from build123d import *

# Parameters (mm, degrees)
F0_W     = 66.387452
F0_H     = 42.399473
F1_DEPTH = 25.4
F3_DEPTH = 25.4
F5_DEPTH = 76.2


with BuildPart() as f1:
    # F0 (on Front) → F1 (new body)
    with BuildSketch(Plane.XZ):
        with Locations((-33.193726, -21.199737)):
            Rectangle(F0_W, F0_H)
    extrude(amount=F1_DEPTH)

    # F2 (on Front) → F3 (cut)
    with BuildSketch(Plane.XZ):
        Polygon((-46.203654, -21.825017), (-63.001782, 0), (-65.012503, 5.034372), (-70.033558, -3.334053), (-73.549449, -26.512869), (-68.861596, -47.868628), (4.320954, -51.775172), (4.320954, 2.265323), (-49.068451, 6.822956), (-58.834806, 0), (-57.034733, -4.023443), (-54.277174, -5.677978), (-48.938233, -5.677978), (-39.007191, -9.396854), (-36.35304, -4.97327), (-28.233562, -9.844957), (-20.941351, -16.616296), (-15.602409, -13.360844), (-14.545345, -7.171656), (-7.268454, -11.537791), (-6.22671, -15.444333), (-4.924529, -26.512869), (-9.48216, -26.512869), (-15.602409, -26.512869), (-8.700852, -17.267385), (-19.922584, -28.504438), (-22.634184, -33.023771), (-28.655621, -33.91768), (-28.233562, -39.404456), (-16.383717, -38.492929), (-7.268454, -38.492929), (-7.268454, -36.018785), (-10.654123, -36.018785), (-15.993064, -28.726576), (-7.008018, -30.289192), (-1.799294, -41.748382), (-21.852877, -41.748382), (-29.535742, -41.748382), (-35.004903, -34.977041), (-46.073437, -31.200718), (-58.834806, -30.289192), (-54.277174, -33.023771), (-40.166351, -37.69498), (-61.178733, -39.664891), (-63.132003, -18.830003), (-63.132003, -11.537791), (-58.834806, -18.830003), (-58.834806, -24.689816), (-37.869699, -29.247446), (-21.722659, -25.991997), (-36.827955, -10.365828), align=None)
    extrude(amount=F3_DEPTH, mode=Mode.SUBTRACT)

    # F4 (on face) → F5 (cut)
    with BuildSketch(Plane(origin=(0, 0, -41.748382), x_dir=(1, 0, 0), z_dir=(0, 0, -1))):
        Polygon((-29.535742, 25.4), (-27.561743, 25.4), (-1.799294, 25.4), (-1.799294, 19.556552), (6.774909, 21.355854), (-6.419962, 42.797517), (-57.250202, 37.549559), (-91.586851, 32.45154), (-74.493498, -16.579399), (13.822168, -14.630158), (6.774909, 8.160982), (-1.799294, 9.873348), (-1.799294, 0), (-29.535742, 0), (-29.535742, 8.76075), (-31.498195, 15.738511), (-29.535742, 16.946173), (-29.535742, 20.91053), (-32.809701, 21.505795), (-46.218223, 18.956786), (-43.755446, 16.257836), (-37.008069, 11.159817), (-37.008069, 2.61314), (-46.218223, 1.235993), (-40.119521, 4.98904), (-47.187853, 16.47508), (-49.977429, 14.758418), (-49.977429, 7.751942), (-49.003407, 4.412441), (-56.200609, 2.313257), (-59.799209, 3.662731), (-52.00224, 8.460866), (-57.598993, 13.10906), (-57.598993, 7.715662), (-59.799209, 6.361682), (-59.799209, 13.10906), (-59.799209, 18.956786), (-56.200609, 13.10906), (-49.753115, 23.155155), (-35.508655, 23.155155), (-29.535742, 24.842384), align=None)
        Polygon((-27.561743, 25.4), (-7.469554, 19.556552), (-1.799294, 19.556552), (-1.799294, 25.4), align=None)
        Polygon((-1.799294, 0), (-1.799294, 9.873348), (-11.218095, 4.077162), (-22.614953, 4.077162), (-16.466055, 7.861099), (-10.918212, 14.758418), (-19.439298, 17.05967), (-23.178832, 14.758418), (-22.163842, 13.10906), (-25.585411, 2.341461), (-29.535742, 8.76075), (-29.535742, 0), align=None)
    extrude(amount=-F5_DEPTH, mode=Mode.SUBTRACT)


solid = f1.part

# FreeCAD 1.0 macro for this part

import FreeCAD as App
import Part
import Sketcher
Q = App.Units.Quantity

doc = App.newDocument("Part")
body = doc.addObject("PartDesign::Body", "Body")
body.AllowCompound = True

# Sketch on XZ plane
sketch1 = body.newObject("Sketcher::SketchObject", "Sketch")
sketch1.AttachmentSupport = (doc.getObject("XZ_Plane"), [""])
sketch1.MapMode = "FlatFace"
sketch1.addGeometry([
    Part.LineSegment(App.Vector(-66, 0, 0), App.Vector(-66, -42, 0)),
    Part.LineSegment(App.Vector(-66, -42, 0), App.Vector(0, -42, 0)),
    Part.LineSegment(App.Vector(0, -42, 0), App.Vector(0, 0, 0)),
    Part.LineSegment(App.Vector(0, 0, 0), App.Vector(-66, 0, 0)),
], False)
sketch1.addConstraint([
    Sketcher.Constraint("Coincident", 0, 2, 1, 1),
    Sketcher.Constraint("Coincident", 1, 2, 2, 1),
    Sketcher.Constraint("Coincident", 2, 2, 3, 1),
    Sketcher.Constraint("Coincident", 3, 2, 0, 1),
    Sketcher.Constraint("Vertical", 0),
    Sketcher.Constraint("Horizontal", 1),
    Sketcher.Constraint("Vertical", 2),
    Sketcher.Constraint("Horizontal", 3),
    Sketcher.Constraint("Coincident", 2, 2, -1, 1),
    Sketcher.Constraint("DistanceX", 1, 1, 1, 2, 66.387452),
    Sketcher.Constraint("DistanceY", 0, 2, 0, 1, 42.399473),
])
pad1 = body.newObject("PartDesign::Pad", "Pad")
pad1.Profile = sketch1
pad1.Length = Q("1 in")

# Sketch on XZ plane
sketch2 = body.newObject("Sketcher::SketchObject", "Sketch001")
sketch2.AttachmentSupport = (doc.getObject("XZ_Plane"), [""])
sketch2.MapMode = "FlatFace"
sketch2.addGeometry([
    Part.LineSegment(App.Vector(-46.2, -21.8, 0), App.Vector(-63, 0, 0)),  # 0
    Part.LineSegment(App.Vector(-63, 0, 0), App.Vector(-65, 5, 0)),  # 1
    Part.LineSegment(App.Vector(-65, 5, 0), App.Vector(-70, -3.3, 0)),  # 2
    Part.LineSegment(App.Vector(-70, -3.3, 0), App.Vector(-73.5, -26.5, 0)),  # 3
    Part.LineSegment(App.Vector(-73.5, -26.5, 0), App.Vector(-68.9, -47.9, 0)),  # 4
    Part.LineSegment(App.Vector(-68.9, -47.9, 0), App.Vector(4.3, -51.8, 0)),  # 5
    Part.LineSegment(App.Vector(4.3, -51.8, 0), App.Vector(4.3, 2.3, 0)),  # 6
    Part.LineSegment(App.Vector(4.3, 2.3, 0), App.Vector(-49.1, 6.8, 0)),  # 7
    Part.LineSegment(App.Vector(-49.1, 6.8, 0), App.Vector(-58.8, 0, 0)),  # 8
    Part.LineSegment(App.Vector(-58.8, 0, 0), App.Vector(-57, -4, 0)),  # 9
    Part.LineSegment(App.Vector(-57, -4, 0), App.Vector(-54.3, -5.7, 0)),  # 10
    Part.LineSegment(App.Vector(-54.3, -5.7, 0), App.Vector(-48.9, -5.7, 0)),  # 11
    Part.LineSegment(App.Vector(-48.9, -5.7, 0), App.Vector(-39, -9.4, 0)),  # 12
    Part.LineSegment(App.Vector(-39, -9.4, 0), App.Vector(-36.4, -5, 0)),  # 13
    Part.LineSegment(App.Vector(-36.4, -5, 0), App.Vector(-28.2, -9.8, 0)),  # 14
    Part.LineSegment(App.Vector(-28.2, -9.8, 0), App.Vector(-20.9, -16.6, 0)),  # 15
    Part.LineSegment(App.Vector(-20.9, -16.6, 0), App.Vector(-15.6, -13.4, 0)),  # 16
    Part.LineSegment(App.Vector(-15.6, -13.4, 0), App.Vector(-14.5, -7.2, 0)),  # 17
    Part.LineSegment(App.Vector(-14.5, -7.2, 0), App.Vector(-7.3, -11.5, 0)),  # 18
    Part.LineSegment(App.Vector(-7.3, -11.5, 0), App.Vector(-6.2, -15.4, 0)),  # 19
    Part.LineSegment(App.Vector(-6.2, -15.4, 0), App.Vector(-4.9, -26.5, 0)),  # 20
    Part.LineSegment(App.Vector(-4.9, -26.5, 0), App.Vector(-15.6, -26.5, 0)),  # 21
    Part.LineSegment(App.Vector(-15.6, -26.5, 0), App.Vector(-8.7, -17.3, 0)),  # 22
    Part.LineSegment(App.Vector(-8.7, -17.3, 0), App.Vector(-19.9, -28.5, 0)),  # 23
    Part.LineSegment(App.Vector(-19.9, -28.5, 0), App.Vector(-22.6, -33, 0)),  # 24
    Part.LineSegment(App.Vector(-22.6, -33, 0), App.Vector(-28.7, -33.9, 0)),  # 25
    Part.LineSegment(App.Vector(-28.7, -33.9, 0), App.Vector(-28.2, -39.4, 0)),  # 26
    Part.LineSegment(App.Vector(-28.2, -39.4, 0), App.Vector(-16.4, -38.5, 0)),  # 27
    Part.LineSegment(App.Vector(-16.4, -38.5, 0), App.Vector(-7.3, -38.5, 0)),  # 28
    Part.LineSegment(App.Vector(-7.3, -38.5, 0), App.Vector(-7.3, -36, 0)),  # 29
    Part.LineSegment(App.Vector(-7.3, -36, 0), App.Vector(-10.7, -36, 0)),  # 30
    Part.LineSegment(App.Vector(-10.7, -36, 0), App.Vector(-16, -28.7, 0)),  # 31
    Part.LineSegment(App.Vector(-16, -28.7, 0), App.Vector(-7, -30.3, 0)),  # 32
    Part.LineSegment(App.Vector(-7, -30.3, 0), App.Vector(-1.8, -41.7, 0)),  # 33
    Part.LineSegment(App.Vector(-1.8, -41.7, 0), App.Vector(-29.5, -41.7, 0)),  # 34
    Part.LineSegment(App.Vector(-29.5, -41.7, 0), App.Vector(-35, -35, 0)),  # 35
    Part.LineSegment(App.Vector(-35, -35, 0), App.Vector(-46.1, -31.2, 0)),  # 36
    Part.LineSegment(App.Vector(-46.1, -31.2, 0), App.Vector(-58.8, -30.3, 0)),  # 37
    Part.LineSegment(App.Vector(-58.8, -30.3, 0), App.Vector(-54.3, -33, 0)),  # 38
    Part.LineSegment(App.Vector(-54.3, -33, 0), App.Vector(-40.2, -37.7, 0)),  # 39
    Part.LineSegment(App.Vector(-40.2, -37.7, 0), App.Vector(-61.2, -39.7, 0)),  # 40
    Part.LineSegment(App.Vector(-61.2, -39.7, 0), App.Vector(-63.1, -18.8, 0)),  # 41
    Part.LineSegment(App.Vector(-63.1, -18.8, 0), App.Vector(-63.1, -11.5, 0)),  # 42
    Part.LineSegment(App.Vector(-63.1, -11.5, 0), App.Vector(-58.8, -18.8, 0)),  # 43
    Part.LineSegment(App.Vector(-58.8, -18.8, 0), App.Vector(-58.8, -24.7, 0)),  # 44
    Part.LineSegment(App.Vector(-58.8, -24.7, 0), App.Vector(-37.9, -29.2, 0)),  # 45
    Part.LineSegment(App.Vector(-37.9, -29.2, 0), App.Vector(-21.7, -26, 0)),  # 46
    Part.LineSegment(App.Vector(-21.7, -26, 0), App.Vector(-36.8, -10.4, 0)),  # 47
    Part.LineSegment(App.Vector(-36.8, -10.4, 0), App.Vector(-46.2, -21.8, 0)),  # 48
], False)
sketch2.addConstraint([
    Sketcher.Constraint("Coincident", 0, 2, 1, 1),
    Sketcher.Constraint("Coincident", 1, 2, 2, 1),
    Sketcher.Constraint("Coincident", 2, 2, 3, 1),
    Sketcher.Constraint("Coincident", 3, 2, 4, 1),
    Sketcher.Constraint("Coincident", 4, 2, 5, 1),
    Sketcher.Constraint("Coincident", 5, 2, 6, 1),
    Sketcher.Constraint("Coincident", 6, 2, 7, 1),
    Sketcher.Constraint("Coincident", 7, 2, 8, 1),
    Sketcher.Constraint("Coincident", 8, 2, 9, 1),
    Sketcher.Constraint("Coincident", 9, 2, 10, 1),
    Sketcher.Constraint("Coincident", 10, 2, 11, 1),
    Sketcher.Constraint("Coincident", 11, 2, 12, 1),
    Sketcher.Constraint("Coincident", 12, 2, 13, 1),
    Sketcher.Constraint("Coincident", 13, 2, 14, 1),
    Sketcher.Constraint("Coincident", 14, 2, 15, 1),
    Sketcher.Constraint("Coincident", 15, 2, 16, 1),
    Sketcher.Constraint("Coincident", 16, 2, 17, 1),
    Sketcher.Constraint("Coincident", 17, 2, 18, 1),
    Sketcher.Constraint("Coincident", 18, 2, 19, 1),
    Sketcher.Constraint("Coincident", 19, 2, 20, 1),
    Sketcher.Constraint("Coincident", 20, 2, 21, 1),
    Sketcher.Constraint("Coincident", 21, 2, 22, 1),
    Sketcher.Constraint("Coincident", 22, 2, 23, 1),
    Sketcher.Constraint("Coincident", 23, 2, 24, 1),
    Sketcher.Constraint("Coincident", 24, 2, 25, 1),
    Sketcher.Constraint("Coincident", 25, 2, 26, 1),
    Sketcher.Constraint("Coincident", 26, 2, 27, 1),
    Sketcher.Constraint("Coincident", 27, 2, 28, 1),
    Sketcher.Constraint("Coincident", 28, 2, 29, 1),
    Sketcher.Constraint("Coincident", 29, 2, 30, 1),
    Sketcher.Constraint("Coincident", 30, 2, 31, 1),
    Sketcher.Constraint("Coincident", 31, 2, 32, 1),
    Sketcher.Constraint("Coincident", 32, 2, 33, 1),
    Sketcher.Constraint("Coincident", 33, 2, 34, 1),
    Sketcher.Constraint("Coincident", 34, 2, 35, 1),
    Sketcher.Constraint("Coincident", 35, 2, 36, 1),
    Sketcher.Constraint("Coincident", 36, 2, 37, 1),
    Sketcher.Constraint("Coincident", 37, 2, 38, 1),
    Sketcher.Constraint("Coincident", 38, 2, 39, 1),
    Sketcher.Constraint("Coincident", 39, 2, 40, 1),
    Sketcher.Constraint("Coincident", 40, 2, 41, 1),
    Sketcher.Constraint("Coincident", 41, 2, 42, 1),
    Sketcher.Constraint("Coincident", 42, 2, 43, 1),
    Sketcher.Constraint("Coincident", 43, 2, 44, 1),
    Sketcher.Constraint("Coincident", 44, 2, 45, 1),
    Sketcher.Constraint("Coincident", 45, 2, 46, 1),
    Sketcher.Constraint("Coincident", 46, 2, 47, 1),
    Sketcher.Constraint("Coincident", 47, 2, 48, 1),
    Sketcher.Constraint("Coincident", 48, 2, 0, 1),
    Sketcher.Constraint("Vertical", 6),
    Sketcher.Constraint("Horizontal", 11),
    Sketcher.Constraint("Horizontal", 21),
    Sketcher.Constraint("Horizontal", 28),
    Sketcher.Constraint("Vertical", 29),
    Sketcher.Constraint("Horizontal", 30),
    Sketcher.Constraint("Horizontal", 34),
    Sketcher.Constraint("Vertical", 42),
    Sketcher.Constraint("Vertical", 44),
    Sketcher.Constraint("PointOnObject", 0, 2, -1),
    Sketcher.Constraint("PointOnObject", 8, 2, -1),
    Sketcher.Constraint("Perpendicular", 2, 10),
    Sketcher.Constraint("Perpendicular", 10, 13),
    Sketcher.Constraint("Perpendicular", 13, 14),
    Sketcher.Constraint("Parallel", 14, 18),
    Sketcher.Constraint("Perpendicular", 18, 24),
    Sketcher.Constraint("Perpendicular", 26, 27),
    Sketcher.Constraint("Perpendicular", 24, 38),
    Sketcher.Constraint("Perpendicular", 40, 41),
    Sketcher.Constraint("Horizontal", 3, 2, 20, 2),
    Sketcher.Constraint("Horizontal", 32, 2, 37, 2),
    Sketcher.Constraint("Horizontal", 24, 2, 38, 2),
    Sketcher.Constraint("Horizontal", 18, 2, 42, 2),
    Sketcher.Constraint("Horizontal", 41, 2, 43, 2),
    Sketcher.Constraint("Vertical", 16, 2, 21, 2),
    Sketcher.Constraint("Vertical", 14, 2, 26, 2),
    Sketcher.Constraint("Vertical", 18, 2, 28, 2),
    Sketcher.Constraint("Vertical", 8, 2, 37, 2),
    Sketcher.Constraint("Vertical", 10, 2, 38, 2),
    Sketcher.Constraint("Vertical", 37, 2, 43, 2),
    Sketcher.Constraint("Distance", 13, Q("0.2031001 in")),
    Sketcher.Constraint("Distance", 36, 11.695002),
    Sketcher.Constraint("Distance", 39, 14.8639),
    Sketcher.Constraint("DistanceX", 11, 1, 11, 2, 5.338941),
    Sketcher.Constraint("DistanceX", 21, 2, 21, 1, 10.67788),
    Sketcher.Constraint("DistanceX", 30, 2, 30, 1, 3.385669),
    Sketcher.Constraint("DistanceX", 45, 2, -1, 1, 37.869699),
    Sketcher.Constraint("DistanceY", 4, 2, 1, 2, 52.903),
    Sketcher.Constraint("DistanceY", 9, 2, 7, 2, 10.846399),
    Sketcher.Constraint("DistanceX", 9, 2, 11, 2, 8.0965),
    Sketcher.Constraint("DistanceY", 14, 2, 17, 2, 2.673301),
    Sketcher.Constraint("DistanceX", 17, 2, 6, 2, 18.866299),
    Sketcher.Constraint("DistanceX", 16, 2, 19, 2, 9.375699),
    Sketcher.Constraint("DistanceX", 24, 2, 23, 2, 2.7116),
    Sketcher.Constraint("DistanceY", 34, 2, 39, 2, 4.053402),
    Sketcher.Constraint("DistanceY", 39, 2, 25, 2, 3.7773),
    Sketcher.Constraint("DistanceY", 40, 2, 37, 2, 9.375699),
    Sketcher.Constraint("DistanceY", 46, 2, 15, 2, 9.375701),
    Sketcher.Constraint("DistanceY", 36, 2, 48, 2, 9.375701),
    Sketcher.Constraint("DistanceY", 44, 2, 48, 2, 2.864799),
    Sketcher.Constraint("Distance", 1, 5.421061),
    Sketcher.Constraint("Distance", 9, 4.407761),
    Sketcher.Constraint("Distance", 10, 3.215839),
    Sketcher.Constraint("Distance", 12, 10.60451),
    Sketcher.Constraint("Distance", 15, 9.95125),
    Sketcher.Constraint("Distance", 16, 6.253181),
    Sketcher.Constraint("Distance", 17, 6.278808),
    Sketcher.Constraint("Distance", 18, 8.48624),
    Sketcher.Constraint("Distance", 20, 11.144872),
    Sketcher.Constraint("Distance", 22, 11.537351),
    Sketcher.Constraint("Distance", 35, 8.704182),
    Sketcher.Constraint("Distance", 40, 21.10452),
    Sketcher.Constraint("Distance", 46, 16.471941),
    Sketcher.Constraint("Distance", 47, 21.733548),
    Sketcher.Constraint("Distance", 48, 14.80597),
    Sketcher.Constraint("DistanceX", 28, 1, 28, 2, 9.115263),
    Sketcher.Constraint("DistanceX", 34, 2, 34, 1, 27.736448),
    Sketcher.Constraint("DistanceY", 6, 1, 6, 2, 54.040495),
    Sketcher.Constraint("DistanceY", 29, 1, 29, 2, 2.474144),
    Sketcher.Constraint("DistanceY", 42, 1, 42, 2, 7.292212),
    Sketcher.Constraint("DistanceY", 44, 2, 44, 1, 5.859813),
    Sketcher.Constraint("DistanceX", 2, 2, -1, 1, 70.033558),
    Sketcher.Constraint("DistanceX", 3, 2, -1, 1, 73.549449),
    Sketcher.Constraint("DistanceY", 3, 2, -1, 1, 26.512869),
    Sketcher.Constraint("DistanceY", 5, 2, -1, 1, 51.775172),
    Sketcher.Constraint("DistanceX", 7, 2, -1, 1, 49.068451),
    Sketcher.Constraint("DistanceY", 10, 2, -1, 1, 5.677978),
    Sketcher.Constraint("DistanceX", 12, 2, -1, 1, 39.007191),
    Sketcher.Constraint("DistanceY", 13, 2, -1, 1, 4.97327),
    Sketcher.Constraint("DistanceX", 14, 2, -1, 1, 28.233562),
    Sketcher.Constraint("DistanceX", 15, 2, -1, 1, 20.941351),
    Sketcher.Constraint("DistanceX", 16, 2, -1, 1, 15.602409),
    Sketcher.Constraint("DistanceX", 22, 2, -1, 1, 8.700852),
    Sketcher.Constraint("DistanceY", 23, 2, -1, 1, 28.504438),
    Sketcher.Constraint("DistanceX", 25, 2, -1, 1, 28.655621),
    Sketcher.Constraint("DistanceY", 25, 2, -1, 1, 33.91768),
    Sketcher.Constraint("DistanceY", 27, 2, -1, 1, 38.492929),
    Sketcher.Constraint("DistanceX", 34, 2, -1, 1, 29.535742),
    Sketcher.Constraint("DistanceY", 35, 2, -1, 1, 34.977041),
    Sketcher.Constraint("DistanceX", 46, 2, -1, 1, 21.722659),
    Sketcher.Constraint("DistanceX", 1, 2, 0, 2, 2.010721),
    Sketcher.Constraint("DistanceX", 2, 2, 4, 2, 1.171962),
    Sketcher.Constraint("DistanceY", 5, 2, 2, 2, 48.441119),
    Sketcher.Constraint("DistanceX", 23, 2, 28, 2, 12.65413),
    Sketcher.Constraint("DistanceX", 23, 2, 31, 2, 3.92952),
    Sketcher.Constraint("DistanceY", 31, 2, 23, 2, 0.222138),
    Sketcher.Constraint("DistanceX", 32, 2, 20, 2, 2.083489),
    Sketcher.Constraint("DistanceY", 47, 2, 13, 2, 5.392558),
])
pocket1 = body.newObject("PartDesign::Pocket", "Pocket")
pocket1.Profile = sketch2
pocket1.Length = Q("1 in")
pocket1.Reversed = True

# Sketch on XY plane
sketch3 = body.newObject("Sketcher::SketchObject", "Sketch002")
sketch3.AttachmentSupport = (doc.getObject("XY_Plane"), [""])
sketch3.MapMode = "FlatFace"
sketch3.AttachmentOffset = App.Placement(App.Vector(0, 0, -41.748382), App.Rotation())
sketch3.addGeometry([
    Part.LineSegment(App.Vector(-29.5, -25.4, 0), App.Vector(-27.6, -25.4, 0)),  # 0
    Part.LineSegment(App.Vector(-27.6, -25.4, 0), App.Vector(-7.5, -19.6, 0)),  # 1
    Part.LineSegment(App.Vector(-7.5, -19.6, 0), App.Vector(-1.8, -19.6, 0)),  # 2
    Part.LineSegment(App.Vector(-1.8, -19.6, 0), App.Vector(6.8, -21.4, 0)),  # 3
    Part.LineSegment(App.Vector(6.8, -21.4, 0), App.Vector(-6.4, -42.8, 0)),  # 4
    Part.LineSegment(App.Vector(-6.4, -42.8, 0), App.Vector(-57.3, -37.5, 0)),  # 5
    Part.LineSegment(App.Vector(-57.3, -37.5, 0), App.Vector(-91.6, -32.5, 0)),  # 6
    Part.LineSegment(App.Vector(-91.6, -32.5, 0), App.Vector(-74.5, 16.6, 0)),  # 7
    Part.LineSegment(App.Vector(-74.5, 16.6, 0), App.Vector(13.8, 14.6, 0)),  # 8
    Part.LineSegment(App.Vector(13.8, 14.6, 0), App.Vector(6.8, -8.2, 0)),  # 9
    Part.LineSegment(App.Vector(6.8, -8.2, 0), App.Vector(-1.8, -9.9, 0)),  # 10
    Part.LineSegment(App.Vector(-1.8, -9.9, 0), App.Vector(-11.2, -4.1, 0)),  # 11
    Part.LineSegment(App.Vector(-11.2, -4.1, 0), App.Vector(-22.6, -4.1, 0)),  # 12
    Part.LineSegment(App.Vector(-22.6, -4.1, 0), App.Vector(-16.5, -7.9, 0)),  # 13
    Part.LineSegment(App.Vector(-16.5, -7.9, 0), App.Vector(-10.9, -14.8, 0)),  # 14
    Part.LineSegment(App.Vector(-10.9, -14.8, 0), App.Vector(-19.4, -17.1, 0)),  # 15
    Part.LineSegment(App.Vector(-19.4, -17.1, 0), App.Vector(-23.2, -14.8, 0)),  # 16
    Part.LineSegment(App.Vector(-23.2, -14.8, 0), App.Vector(-22.2, -13.1, 0)),  # 17
    Part.LineSegment(App.Vector(-22.2, -13.1, 0), App.Vector(-25.6, -2.3, 0)),  # 18
    Part.LineSegment(App.Vector(-25.6, -2.3, 0), App.Vector(-29.5, -8.8, 0)),  # 19
    Part.LineSegment(App.Vector(-29.5, -8.8, 0), App.Vector(-31.5, -15.7, 0)),  # 20
    Part.LineSegment(App.Vector(-31.5, -15.7, 0), App.Vector(-29.5, -16.9, 0)),  # 21
    Part.LineSegment(App.Vector(-29.5, -16.9, 0), App.Vector(-29.5, -20.9, 0)),  # 22
    Part.LineSegment(App.Vector(-29.5, -20.9, 0), App.Vector(-32.8, -21.5, 0)),  # 23
    Part.LineSegment(App.Vector(-32.8, -21.5, 0), App.Vector(-46.2, -19, 0)),  # 24
    Part.LineSegment(App.Vector(-46.2, -19, 0), App.Vector(-43.8, -16.3, 0)),  # 25
    Part.LineSegment(App.Vector(-43.8, -16.3, 0), App.Vector(-37, -11.2, 0)),  # 26
    Part.LineSegment(App.Vector(-37, -11.2, 0), App.Vector(-37, -2.6, 0)),  # 27
    Part.LineSegment(App.Vector(-37, -2.6, 0), App.Vector(-46.2, -1.2, 0)),  # 28
    Part.LineSegment(App.Vector(-46.2, -1.2, 0), App.Vector(-40.1, -5, 0)),  # 29
    Part.LineSegment(App.Vector(-40.1, -5, 0), App.Vector(-47.2, -16.5, 0)),  # 30
    Part.LineSegment(App.Vector(-47.2, -16.5, 0), App.Vector(-50, -14.8, 0)),  # 31
    Part.LineSegment(App.Vector(-50, -14.8, 0), App.Vector(-50, -7.8, 0)),  # 32
    Part.LineSegment(App.Vector(-50, -7.8, 0), App.Vector(-49, -4.4, 0)),  # 33
    Part.LineSegment(App.Vector(-49, -4.4, 0), App.Vector(-56.2, -2.3, 0)),  # 34
    Part.LineSegment(App.Vector(-56.2, -2.3, 0), App.Vector(-59.8, -3.7, 0)),  # 35
    Part.LineSegment(App.Vector(-59.8, -3.7, 0), App.Vector(-52, -8.5, 0)),  # 36
    Part.LineSegment(App.Vector(-52, -8.5, 0), App.Vector(-57.6, -13.1, 0)),  # 37
    Part.LineSegment(App.Vector(-57.6, -13.1, 0), App.Vector(-57.6, -7.7, 0)),  # 38
    Part.LineSegment(App.Vector(-57.6, -7.7, 0), App.Vector(-59.8, -6.4, 0)),  # 39
    Part.LineSegment(App.Vector(-59.8, -6.4, 0), App.Vector(-59.8, -19, 0)),  # 40
    Part.LineSegment(App.Vector(-59.8, -19, 0), App.Vector(-56.2, -13.1, 0)),  # 41
    Part.LineSegment(App.Vector(-56.2, -13.1, 0), App.Vector(-49.8, -23.2, 0)),  # 42
    Part.LineSegment(App.Vector(-49.8, -23.2, 0), App.Vector(-35.5, -23.2, 0)),  # 43
    Part.LineSegment(App.Vector(-35.5, -23.2, 0), App.Vector(-29.5, -24.8, 0)),  # 44
    Part.LineSegment(App.Vector(-29.5, -24.8, 0), App.Vector(-29.5, -25.4, 0)),  # 45
], False)
sketch3.addConstraint([
    Sketcher.Constraint("Coincident", 0, 2, 1, 1),
    Sketcher.Constraint("Coincident", 1, 2, 2, 1),
    Sketcher.Constraint("Coincident", 2, 2, 3, 1),
    Sketcher.Constraint("Coincident", 3, 2, 4, 1),
    Sketcher.Constraint("Coincident", 4, 2, 5, 1),
    Sketcher.Constraint("Coincident", 5, 2, 6, 1),
    Sketcher.Constraint("Coincident", 6, 2, 7, 1),
    Sketcher.Constraint("Coincident", 7, 2, 8, 1),
    Sketcher.Constraint("Coincident", 8, 2, 9, 1),
    Sketcher.Constraint("Coincident", 9, 2, 10, 1),
    Sketcher.Constraint("Coincident", 10, 2, 11, 1),
    Sketcher.Constraint("Coincident", 11, 2, 12, 1),
    Sketcher.Constraint("Coincident", 12, 2, 13, 1),
    Sketcher.Constraint("Coincident", 13, 2, 14, 1),
    Sketcher.Constraint("Coincident", 14, 2, 15, 1),
    Sketcher.Constraint("Coincident", 15, 2, 16, 1),
    Sketcher.Constraint("Coincident", 16, 2, 17, 1),
    Sketcher.Constraint("Coincident", 17, 2, 18, 1),
    Sketcher.Constraint("Coincident", 18, 2, 19, 1),
    Sketcher.Constraint("Coincident", 19, 2, 20, 1),
    Sketcher.Constraint("Coincident", 20, 2, 21, 1),
    Sketcher.Constraint("Coincident", 21, 2, 22, 1),
    Sketcher.Constraint("Coincident", 22, 2, 23, 1),
    Sketcher.Constraint("Coincident", 23, 2, 24, 1),
    Sketcher.Constraint("Coincident", 24, 2, 25, 1),
    Sketcher.Constraint("Coincident", 25, 2, 26, 1),
    Sketcher.Constraint("Coincident", 26, 2, 27, 1),
    Sketcher.Constraint("Coincident", 27, 2, 28, 1),
    Sketcher.Constraint("Coincident", 28, 2, 29, 1),
    Sketcher.Constraint("Coincident", 29, 2, 30, 1),
    Sketcher.Constraint("Coincident", 30, 2, 31, 1),
    Sketcher.Constraint("Coincident", 31, 2, 32, 1),
    Sketcher.Constraint("Coincident", 32, 2, 33, 1),
    Sketcher.Constraint("Coincident", 33, 2, 34, 1),
    Sketcher.Constraint("Coincident", 34, 2, 35, 1),
    Sketcher.Constraint("Coincident", 35, 2, 36, 1),
    Sketcher.Constraint("Coincident", 36, 2, 37, 1),
    Sketcher.Constraint("Coincident", 37, 2, 38, 1),
    Sketcher.Constraint("Coincident", 38, 2, 39, 1),
    Sketcher.Constraint("Coincident", 39, 2, 40, 1),
    Sketcher.Constraint("Coincident", 40, 2, 41, 1),
    Sketcher.Constraint("Coincident", 41, 2, 42, 1),
    Sketcher.Constraint("Coincident", 42, 2, 43, 1),
    Sketcher.Constraint("Coincident", 43, 2, 44, 1),
    Sketcher.Constraint("Coincident", 44, 2, 45, 1),
    Sketcher.Constraint("Coincident", 45, 2, 0, 1),
    Sketcher.Constraint("Horizontal", 0),
    Sketcher.Constraint("Horizontal", 2),
    Sketcher.Constraint("Horizontal", 12),
    Sketcher.Constraint("Vertical", 22),
    Sketcher.Constraint("Vertical", 27),
    Sketcher.Constraint("Vertical", 32),
    Sketcher.Constraint("Vertical", 38),
    Sketcher.Constraint("Vertical", 40),
    Sketcher.Constraint("Horizontal", 43),
    Sketcher.Constraint("Vertical", 45),
    Sketcher.Constraint("Perpendicular", 4, 11),
    Sketcher.Constraint("Parallel", 11, 13),
    Sketcher.Constraint("Parallel", 13, 16),
    Sketcher.Constraint("Perpendicular", 16, 17),
    Sketcher.Constraint("Parallel", 17, 19),
    Sketcher.Constraint("Perpendicular", 19, 21),
    Sketcher.Constraint("Parallel", 21, 29),
    Sketcher.Constraint("Perpendicular", 29, 30),
    Sketcher.Constraint("Perpendicular", 30, 31),
    Sketcher.Constraint("Perpendicular", 33, 34),
    Sketcher.Constraint("Parallel", 31, 36),
    Sketcher.Constraint("Parallel", 36, 39),
    Sketcher.Constraint("Perpendicular", 39, 41),
    Sketcher.Constraint("Horizontal", 14, 2, 16, 2),
    Sketcher.Constraint("Horizontal", 16, 2, 31, 2),
    Sketcher.Constraint("Horizontal", 17, 2, 37, 2),
    Sketcher.Constraint("Horizontal", 24, 2, 40, 2),
    Sketcher.Constraint("Horizontal", 37, 2, 41, 2),
    Sketcher.Constraint("Vertical", 3, 2, 9, 2),
    Sketcher.Constraint("Vertical", 2, 2, 10, 2),
    Sketcher.Constraint("Vertical", 19, 2, 21, 2),
    Sketcher.Constraint("Vertical", 24, 2, 28, 2),
    Sketcher.Constraint("Vertical", 35, 2, 39, 2),
    Sketcher.Constraint("Vertical", 34, 2, 41, 2),
    Sketcher.Constraint("Vertical", 22, 2, 44, 2),
    Sketcher.Constraint("DistanceY", 0, 2, -1, 1, Q("1 in")),
    Sketcher.Constraint("DistanceX", 0, 1, 0, 2, 1.973999),
    Sketcher.Constraint("DistanceX", 16, 2, 12, 2, Q("0.0222 in")),
    Sketcher.Constraint("DistanceY", 21, 2, 25, 2, Q("0.0270999 in")),
    Sketcher.Constraint("Distance", 19, 7.537399),
    Sketcher.Constraint("DistanceX", 2, 1, 2, 2, 5.67026),
    Sketcher.Constraint("DistanceX", 43, 1, 43, 2, 14.24446),
    Sketcher.Constraint("DistanceX", 7, 2, -1, 1, 74.493498),
    Sketcher.Constraint("DistanceY", -1, 1, 7, 2, 16.579399),
    Sketcher.Constraint("DistanceY", 13, 2, -1, 1, 7.861099),
    Sketcher.Constraint("DistanceX", 15, 2, -1, 1, 19.439298),
    Sketcher.Constraint("DistanceX", 23, 2, -1, 1, 32.809701),
    Sketcher.Constraint("DistanceX", 11, 2, 10, 2, 9.418801),
    Sketcher.Constraint("DistanceX", 12, 2, 1, 2, 15.145399),
    Sketcher.Constraint("DistanceX", 13, 2, 1, 2, 8.996501),
    Sketcher.Constraint("DistanceY", 12, 2, 18, 2, 1.735701),
    Sketcher.Constraint("DistanceY", 17, 2, 18, 2, 10.767599),
    Sketcher.Constraint("DistanceX", 19, 2, 17, 2, 7.3719),
    Sketcher.Constraint("DistanceY", 29, 2, 27, 2, 2.3759),
    Sketcher.Constraint("DistanceY", 31, 2, 26, 2, 3.598601),
    Sketcher.Constraint("DistanceY", 32, 2, 29, 2, 2.762902),
    Sketcher.Constraint("DistanceY", 32, 2, 33, 2, 3.339501),
    Sketcher.Constraint("DistanceX", 34, 2, 33, 2, 7.197202),
    Sketcher.Constraint("DistanceX", 35, 2, 34, 2, 3.5986),
    Sketcher.Constraint("Distance", 3, 8.760961),
    Sketcher.Constraint("Distance", 4, 25.176369),
    Sketcher.Constraint("Distance", 6, 34.713042),
    Sketcher.Constraint("Distance", 10, 8.743521),
    Sketcher.Constraint("Distance", 13, 7.219912),
    Sketcher.Constraint("Distance", 21, 2.304272),
    Sketcher.Constraint("Distance", 24, 13.64866),
    Sketcher.Constraint("Distance", 25, 3.653711),
    Sketcher.Constraint("Distance", 39, 2.58345),
    Sketcher.Constraint("DistanceY", 22, 2, 22, 1, 3.964357),
    Sketcher.Constraint("DistanceY", 27, 1, 27, 2, 8.546677),
    Sketcher.Constraint("DistanceY", 38, 1, 38, 2, 5.393398),
    Sketcher.Constraint("DistanceY", 45, 2, 45, 1, 0.557616),
    Sketcher.Constraint("DistanceY", 1, 2, -1, 1, 19.556552),
    Sketcher.Constraint("DistanceX", -1, 1, 3, 2, 6.774909),
    Sketcher.Constraint("DistanceY", 5, 2, -1, 1, 37.549559),
    Sketcher.Constraint("DistanceX", 6, 2, -1, 1, 91.586851),
    Sketcher.Constraint("DistanceY", 6, 2, -1, 1, 32.45154),
    Sketcher.Constraint("DistanceY", 14, 2, -1, 1, 14.758418),
    Sketcher.Constraint("DistanceY", 15, 2, -1, 1, 17.05967),
    Sketcher.Constraint("DistanceY", 20, 2, -1, 1, 15.738511),
    Sketcher.Constraint("DistanceX", 26, 2, -1, 1, 37.008069),
    Sketcher.Constraint("DistanceX", 29, 2, -1, 1, 40.119521),
    Sketcher.Constraint("DistanceY", 30, 2, -1, 1, 16.47508),
    Sketcher.Constraint("DistanceX", 34, 2, -1, 1, 56.200609),
    Sketcher.Constraint("DistanceY", 35, 2, -1, 1, 3.662731),
    Sketcher.Constraint("DistanceX", 36, 2, -1, 1, 52.00224),
    Sketcher.Constraint("DistanceX", 3, 2, 8, 2, 7.047259),
    Sketcher.Constraint("DistanceY", 2, 2, 8, 2, 34.18671),
    Sketcher.Constraint("DistanceX", 14, 2, 1, 2, 3.448658),
    Sketcher.Constraint("DistanceY", 23, 2, 21, 2, 4.559622),
    Sketcher.Constraint("DistanceX", 42, 2, 24, 2, 3.534892),
    Sketcher.Constraint("DistanceY", 42, 2, 24, 2, 4.198369),
])
pocket2 = body.newObject("PartDesign::Pocket", "Pocket001")
pocket2.Profile = sketch3
pocket2.Length = Q("3 in")
pocket2.Reversed = True

doc.recompute()
